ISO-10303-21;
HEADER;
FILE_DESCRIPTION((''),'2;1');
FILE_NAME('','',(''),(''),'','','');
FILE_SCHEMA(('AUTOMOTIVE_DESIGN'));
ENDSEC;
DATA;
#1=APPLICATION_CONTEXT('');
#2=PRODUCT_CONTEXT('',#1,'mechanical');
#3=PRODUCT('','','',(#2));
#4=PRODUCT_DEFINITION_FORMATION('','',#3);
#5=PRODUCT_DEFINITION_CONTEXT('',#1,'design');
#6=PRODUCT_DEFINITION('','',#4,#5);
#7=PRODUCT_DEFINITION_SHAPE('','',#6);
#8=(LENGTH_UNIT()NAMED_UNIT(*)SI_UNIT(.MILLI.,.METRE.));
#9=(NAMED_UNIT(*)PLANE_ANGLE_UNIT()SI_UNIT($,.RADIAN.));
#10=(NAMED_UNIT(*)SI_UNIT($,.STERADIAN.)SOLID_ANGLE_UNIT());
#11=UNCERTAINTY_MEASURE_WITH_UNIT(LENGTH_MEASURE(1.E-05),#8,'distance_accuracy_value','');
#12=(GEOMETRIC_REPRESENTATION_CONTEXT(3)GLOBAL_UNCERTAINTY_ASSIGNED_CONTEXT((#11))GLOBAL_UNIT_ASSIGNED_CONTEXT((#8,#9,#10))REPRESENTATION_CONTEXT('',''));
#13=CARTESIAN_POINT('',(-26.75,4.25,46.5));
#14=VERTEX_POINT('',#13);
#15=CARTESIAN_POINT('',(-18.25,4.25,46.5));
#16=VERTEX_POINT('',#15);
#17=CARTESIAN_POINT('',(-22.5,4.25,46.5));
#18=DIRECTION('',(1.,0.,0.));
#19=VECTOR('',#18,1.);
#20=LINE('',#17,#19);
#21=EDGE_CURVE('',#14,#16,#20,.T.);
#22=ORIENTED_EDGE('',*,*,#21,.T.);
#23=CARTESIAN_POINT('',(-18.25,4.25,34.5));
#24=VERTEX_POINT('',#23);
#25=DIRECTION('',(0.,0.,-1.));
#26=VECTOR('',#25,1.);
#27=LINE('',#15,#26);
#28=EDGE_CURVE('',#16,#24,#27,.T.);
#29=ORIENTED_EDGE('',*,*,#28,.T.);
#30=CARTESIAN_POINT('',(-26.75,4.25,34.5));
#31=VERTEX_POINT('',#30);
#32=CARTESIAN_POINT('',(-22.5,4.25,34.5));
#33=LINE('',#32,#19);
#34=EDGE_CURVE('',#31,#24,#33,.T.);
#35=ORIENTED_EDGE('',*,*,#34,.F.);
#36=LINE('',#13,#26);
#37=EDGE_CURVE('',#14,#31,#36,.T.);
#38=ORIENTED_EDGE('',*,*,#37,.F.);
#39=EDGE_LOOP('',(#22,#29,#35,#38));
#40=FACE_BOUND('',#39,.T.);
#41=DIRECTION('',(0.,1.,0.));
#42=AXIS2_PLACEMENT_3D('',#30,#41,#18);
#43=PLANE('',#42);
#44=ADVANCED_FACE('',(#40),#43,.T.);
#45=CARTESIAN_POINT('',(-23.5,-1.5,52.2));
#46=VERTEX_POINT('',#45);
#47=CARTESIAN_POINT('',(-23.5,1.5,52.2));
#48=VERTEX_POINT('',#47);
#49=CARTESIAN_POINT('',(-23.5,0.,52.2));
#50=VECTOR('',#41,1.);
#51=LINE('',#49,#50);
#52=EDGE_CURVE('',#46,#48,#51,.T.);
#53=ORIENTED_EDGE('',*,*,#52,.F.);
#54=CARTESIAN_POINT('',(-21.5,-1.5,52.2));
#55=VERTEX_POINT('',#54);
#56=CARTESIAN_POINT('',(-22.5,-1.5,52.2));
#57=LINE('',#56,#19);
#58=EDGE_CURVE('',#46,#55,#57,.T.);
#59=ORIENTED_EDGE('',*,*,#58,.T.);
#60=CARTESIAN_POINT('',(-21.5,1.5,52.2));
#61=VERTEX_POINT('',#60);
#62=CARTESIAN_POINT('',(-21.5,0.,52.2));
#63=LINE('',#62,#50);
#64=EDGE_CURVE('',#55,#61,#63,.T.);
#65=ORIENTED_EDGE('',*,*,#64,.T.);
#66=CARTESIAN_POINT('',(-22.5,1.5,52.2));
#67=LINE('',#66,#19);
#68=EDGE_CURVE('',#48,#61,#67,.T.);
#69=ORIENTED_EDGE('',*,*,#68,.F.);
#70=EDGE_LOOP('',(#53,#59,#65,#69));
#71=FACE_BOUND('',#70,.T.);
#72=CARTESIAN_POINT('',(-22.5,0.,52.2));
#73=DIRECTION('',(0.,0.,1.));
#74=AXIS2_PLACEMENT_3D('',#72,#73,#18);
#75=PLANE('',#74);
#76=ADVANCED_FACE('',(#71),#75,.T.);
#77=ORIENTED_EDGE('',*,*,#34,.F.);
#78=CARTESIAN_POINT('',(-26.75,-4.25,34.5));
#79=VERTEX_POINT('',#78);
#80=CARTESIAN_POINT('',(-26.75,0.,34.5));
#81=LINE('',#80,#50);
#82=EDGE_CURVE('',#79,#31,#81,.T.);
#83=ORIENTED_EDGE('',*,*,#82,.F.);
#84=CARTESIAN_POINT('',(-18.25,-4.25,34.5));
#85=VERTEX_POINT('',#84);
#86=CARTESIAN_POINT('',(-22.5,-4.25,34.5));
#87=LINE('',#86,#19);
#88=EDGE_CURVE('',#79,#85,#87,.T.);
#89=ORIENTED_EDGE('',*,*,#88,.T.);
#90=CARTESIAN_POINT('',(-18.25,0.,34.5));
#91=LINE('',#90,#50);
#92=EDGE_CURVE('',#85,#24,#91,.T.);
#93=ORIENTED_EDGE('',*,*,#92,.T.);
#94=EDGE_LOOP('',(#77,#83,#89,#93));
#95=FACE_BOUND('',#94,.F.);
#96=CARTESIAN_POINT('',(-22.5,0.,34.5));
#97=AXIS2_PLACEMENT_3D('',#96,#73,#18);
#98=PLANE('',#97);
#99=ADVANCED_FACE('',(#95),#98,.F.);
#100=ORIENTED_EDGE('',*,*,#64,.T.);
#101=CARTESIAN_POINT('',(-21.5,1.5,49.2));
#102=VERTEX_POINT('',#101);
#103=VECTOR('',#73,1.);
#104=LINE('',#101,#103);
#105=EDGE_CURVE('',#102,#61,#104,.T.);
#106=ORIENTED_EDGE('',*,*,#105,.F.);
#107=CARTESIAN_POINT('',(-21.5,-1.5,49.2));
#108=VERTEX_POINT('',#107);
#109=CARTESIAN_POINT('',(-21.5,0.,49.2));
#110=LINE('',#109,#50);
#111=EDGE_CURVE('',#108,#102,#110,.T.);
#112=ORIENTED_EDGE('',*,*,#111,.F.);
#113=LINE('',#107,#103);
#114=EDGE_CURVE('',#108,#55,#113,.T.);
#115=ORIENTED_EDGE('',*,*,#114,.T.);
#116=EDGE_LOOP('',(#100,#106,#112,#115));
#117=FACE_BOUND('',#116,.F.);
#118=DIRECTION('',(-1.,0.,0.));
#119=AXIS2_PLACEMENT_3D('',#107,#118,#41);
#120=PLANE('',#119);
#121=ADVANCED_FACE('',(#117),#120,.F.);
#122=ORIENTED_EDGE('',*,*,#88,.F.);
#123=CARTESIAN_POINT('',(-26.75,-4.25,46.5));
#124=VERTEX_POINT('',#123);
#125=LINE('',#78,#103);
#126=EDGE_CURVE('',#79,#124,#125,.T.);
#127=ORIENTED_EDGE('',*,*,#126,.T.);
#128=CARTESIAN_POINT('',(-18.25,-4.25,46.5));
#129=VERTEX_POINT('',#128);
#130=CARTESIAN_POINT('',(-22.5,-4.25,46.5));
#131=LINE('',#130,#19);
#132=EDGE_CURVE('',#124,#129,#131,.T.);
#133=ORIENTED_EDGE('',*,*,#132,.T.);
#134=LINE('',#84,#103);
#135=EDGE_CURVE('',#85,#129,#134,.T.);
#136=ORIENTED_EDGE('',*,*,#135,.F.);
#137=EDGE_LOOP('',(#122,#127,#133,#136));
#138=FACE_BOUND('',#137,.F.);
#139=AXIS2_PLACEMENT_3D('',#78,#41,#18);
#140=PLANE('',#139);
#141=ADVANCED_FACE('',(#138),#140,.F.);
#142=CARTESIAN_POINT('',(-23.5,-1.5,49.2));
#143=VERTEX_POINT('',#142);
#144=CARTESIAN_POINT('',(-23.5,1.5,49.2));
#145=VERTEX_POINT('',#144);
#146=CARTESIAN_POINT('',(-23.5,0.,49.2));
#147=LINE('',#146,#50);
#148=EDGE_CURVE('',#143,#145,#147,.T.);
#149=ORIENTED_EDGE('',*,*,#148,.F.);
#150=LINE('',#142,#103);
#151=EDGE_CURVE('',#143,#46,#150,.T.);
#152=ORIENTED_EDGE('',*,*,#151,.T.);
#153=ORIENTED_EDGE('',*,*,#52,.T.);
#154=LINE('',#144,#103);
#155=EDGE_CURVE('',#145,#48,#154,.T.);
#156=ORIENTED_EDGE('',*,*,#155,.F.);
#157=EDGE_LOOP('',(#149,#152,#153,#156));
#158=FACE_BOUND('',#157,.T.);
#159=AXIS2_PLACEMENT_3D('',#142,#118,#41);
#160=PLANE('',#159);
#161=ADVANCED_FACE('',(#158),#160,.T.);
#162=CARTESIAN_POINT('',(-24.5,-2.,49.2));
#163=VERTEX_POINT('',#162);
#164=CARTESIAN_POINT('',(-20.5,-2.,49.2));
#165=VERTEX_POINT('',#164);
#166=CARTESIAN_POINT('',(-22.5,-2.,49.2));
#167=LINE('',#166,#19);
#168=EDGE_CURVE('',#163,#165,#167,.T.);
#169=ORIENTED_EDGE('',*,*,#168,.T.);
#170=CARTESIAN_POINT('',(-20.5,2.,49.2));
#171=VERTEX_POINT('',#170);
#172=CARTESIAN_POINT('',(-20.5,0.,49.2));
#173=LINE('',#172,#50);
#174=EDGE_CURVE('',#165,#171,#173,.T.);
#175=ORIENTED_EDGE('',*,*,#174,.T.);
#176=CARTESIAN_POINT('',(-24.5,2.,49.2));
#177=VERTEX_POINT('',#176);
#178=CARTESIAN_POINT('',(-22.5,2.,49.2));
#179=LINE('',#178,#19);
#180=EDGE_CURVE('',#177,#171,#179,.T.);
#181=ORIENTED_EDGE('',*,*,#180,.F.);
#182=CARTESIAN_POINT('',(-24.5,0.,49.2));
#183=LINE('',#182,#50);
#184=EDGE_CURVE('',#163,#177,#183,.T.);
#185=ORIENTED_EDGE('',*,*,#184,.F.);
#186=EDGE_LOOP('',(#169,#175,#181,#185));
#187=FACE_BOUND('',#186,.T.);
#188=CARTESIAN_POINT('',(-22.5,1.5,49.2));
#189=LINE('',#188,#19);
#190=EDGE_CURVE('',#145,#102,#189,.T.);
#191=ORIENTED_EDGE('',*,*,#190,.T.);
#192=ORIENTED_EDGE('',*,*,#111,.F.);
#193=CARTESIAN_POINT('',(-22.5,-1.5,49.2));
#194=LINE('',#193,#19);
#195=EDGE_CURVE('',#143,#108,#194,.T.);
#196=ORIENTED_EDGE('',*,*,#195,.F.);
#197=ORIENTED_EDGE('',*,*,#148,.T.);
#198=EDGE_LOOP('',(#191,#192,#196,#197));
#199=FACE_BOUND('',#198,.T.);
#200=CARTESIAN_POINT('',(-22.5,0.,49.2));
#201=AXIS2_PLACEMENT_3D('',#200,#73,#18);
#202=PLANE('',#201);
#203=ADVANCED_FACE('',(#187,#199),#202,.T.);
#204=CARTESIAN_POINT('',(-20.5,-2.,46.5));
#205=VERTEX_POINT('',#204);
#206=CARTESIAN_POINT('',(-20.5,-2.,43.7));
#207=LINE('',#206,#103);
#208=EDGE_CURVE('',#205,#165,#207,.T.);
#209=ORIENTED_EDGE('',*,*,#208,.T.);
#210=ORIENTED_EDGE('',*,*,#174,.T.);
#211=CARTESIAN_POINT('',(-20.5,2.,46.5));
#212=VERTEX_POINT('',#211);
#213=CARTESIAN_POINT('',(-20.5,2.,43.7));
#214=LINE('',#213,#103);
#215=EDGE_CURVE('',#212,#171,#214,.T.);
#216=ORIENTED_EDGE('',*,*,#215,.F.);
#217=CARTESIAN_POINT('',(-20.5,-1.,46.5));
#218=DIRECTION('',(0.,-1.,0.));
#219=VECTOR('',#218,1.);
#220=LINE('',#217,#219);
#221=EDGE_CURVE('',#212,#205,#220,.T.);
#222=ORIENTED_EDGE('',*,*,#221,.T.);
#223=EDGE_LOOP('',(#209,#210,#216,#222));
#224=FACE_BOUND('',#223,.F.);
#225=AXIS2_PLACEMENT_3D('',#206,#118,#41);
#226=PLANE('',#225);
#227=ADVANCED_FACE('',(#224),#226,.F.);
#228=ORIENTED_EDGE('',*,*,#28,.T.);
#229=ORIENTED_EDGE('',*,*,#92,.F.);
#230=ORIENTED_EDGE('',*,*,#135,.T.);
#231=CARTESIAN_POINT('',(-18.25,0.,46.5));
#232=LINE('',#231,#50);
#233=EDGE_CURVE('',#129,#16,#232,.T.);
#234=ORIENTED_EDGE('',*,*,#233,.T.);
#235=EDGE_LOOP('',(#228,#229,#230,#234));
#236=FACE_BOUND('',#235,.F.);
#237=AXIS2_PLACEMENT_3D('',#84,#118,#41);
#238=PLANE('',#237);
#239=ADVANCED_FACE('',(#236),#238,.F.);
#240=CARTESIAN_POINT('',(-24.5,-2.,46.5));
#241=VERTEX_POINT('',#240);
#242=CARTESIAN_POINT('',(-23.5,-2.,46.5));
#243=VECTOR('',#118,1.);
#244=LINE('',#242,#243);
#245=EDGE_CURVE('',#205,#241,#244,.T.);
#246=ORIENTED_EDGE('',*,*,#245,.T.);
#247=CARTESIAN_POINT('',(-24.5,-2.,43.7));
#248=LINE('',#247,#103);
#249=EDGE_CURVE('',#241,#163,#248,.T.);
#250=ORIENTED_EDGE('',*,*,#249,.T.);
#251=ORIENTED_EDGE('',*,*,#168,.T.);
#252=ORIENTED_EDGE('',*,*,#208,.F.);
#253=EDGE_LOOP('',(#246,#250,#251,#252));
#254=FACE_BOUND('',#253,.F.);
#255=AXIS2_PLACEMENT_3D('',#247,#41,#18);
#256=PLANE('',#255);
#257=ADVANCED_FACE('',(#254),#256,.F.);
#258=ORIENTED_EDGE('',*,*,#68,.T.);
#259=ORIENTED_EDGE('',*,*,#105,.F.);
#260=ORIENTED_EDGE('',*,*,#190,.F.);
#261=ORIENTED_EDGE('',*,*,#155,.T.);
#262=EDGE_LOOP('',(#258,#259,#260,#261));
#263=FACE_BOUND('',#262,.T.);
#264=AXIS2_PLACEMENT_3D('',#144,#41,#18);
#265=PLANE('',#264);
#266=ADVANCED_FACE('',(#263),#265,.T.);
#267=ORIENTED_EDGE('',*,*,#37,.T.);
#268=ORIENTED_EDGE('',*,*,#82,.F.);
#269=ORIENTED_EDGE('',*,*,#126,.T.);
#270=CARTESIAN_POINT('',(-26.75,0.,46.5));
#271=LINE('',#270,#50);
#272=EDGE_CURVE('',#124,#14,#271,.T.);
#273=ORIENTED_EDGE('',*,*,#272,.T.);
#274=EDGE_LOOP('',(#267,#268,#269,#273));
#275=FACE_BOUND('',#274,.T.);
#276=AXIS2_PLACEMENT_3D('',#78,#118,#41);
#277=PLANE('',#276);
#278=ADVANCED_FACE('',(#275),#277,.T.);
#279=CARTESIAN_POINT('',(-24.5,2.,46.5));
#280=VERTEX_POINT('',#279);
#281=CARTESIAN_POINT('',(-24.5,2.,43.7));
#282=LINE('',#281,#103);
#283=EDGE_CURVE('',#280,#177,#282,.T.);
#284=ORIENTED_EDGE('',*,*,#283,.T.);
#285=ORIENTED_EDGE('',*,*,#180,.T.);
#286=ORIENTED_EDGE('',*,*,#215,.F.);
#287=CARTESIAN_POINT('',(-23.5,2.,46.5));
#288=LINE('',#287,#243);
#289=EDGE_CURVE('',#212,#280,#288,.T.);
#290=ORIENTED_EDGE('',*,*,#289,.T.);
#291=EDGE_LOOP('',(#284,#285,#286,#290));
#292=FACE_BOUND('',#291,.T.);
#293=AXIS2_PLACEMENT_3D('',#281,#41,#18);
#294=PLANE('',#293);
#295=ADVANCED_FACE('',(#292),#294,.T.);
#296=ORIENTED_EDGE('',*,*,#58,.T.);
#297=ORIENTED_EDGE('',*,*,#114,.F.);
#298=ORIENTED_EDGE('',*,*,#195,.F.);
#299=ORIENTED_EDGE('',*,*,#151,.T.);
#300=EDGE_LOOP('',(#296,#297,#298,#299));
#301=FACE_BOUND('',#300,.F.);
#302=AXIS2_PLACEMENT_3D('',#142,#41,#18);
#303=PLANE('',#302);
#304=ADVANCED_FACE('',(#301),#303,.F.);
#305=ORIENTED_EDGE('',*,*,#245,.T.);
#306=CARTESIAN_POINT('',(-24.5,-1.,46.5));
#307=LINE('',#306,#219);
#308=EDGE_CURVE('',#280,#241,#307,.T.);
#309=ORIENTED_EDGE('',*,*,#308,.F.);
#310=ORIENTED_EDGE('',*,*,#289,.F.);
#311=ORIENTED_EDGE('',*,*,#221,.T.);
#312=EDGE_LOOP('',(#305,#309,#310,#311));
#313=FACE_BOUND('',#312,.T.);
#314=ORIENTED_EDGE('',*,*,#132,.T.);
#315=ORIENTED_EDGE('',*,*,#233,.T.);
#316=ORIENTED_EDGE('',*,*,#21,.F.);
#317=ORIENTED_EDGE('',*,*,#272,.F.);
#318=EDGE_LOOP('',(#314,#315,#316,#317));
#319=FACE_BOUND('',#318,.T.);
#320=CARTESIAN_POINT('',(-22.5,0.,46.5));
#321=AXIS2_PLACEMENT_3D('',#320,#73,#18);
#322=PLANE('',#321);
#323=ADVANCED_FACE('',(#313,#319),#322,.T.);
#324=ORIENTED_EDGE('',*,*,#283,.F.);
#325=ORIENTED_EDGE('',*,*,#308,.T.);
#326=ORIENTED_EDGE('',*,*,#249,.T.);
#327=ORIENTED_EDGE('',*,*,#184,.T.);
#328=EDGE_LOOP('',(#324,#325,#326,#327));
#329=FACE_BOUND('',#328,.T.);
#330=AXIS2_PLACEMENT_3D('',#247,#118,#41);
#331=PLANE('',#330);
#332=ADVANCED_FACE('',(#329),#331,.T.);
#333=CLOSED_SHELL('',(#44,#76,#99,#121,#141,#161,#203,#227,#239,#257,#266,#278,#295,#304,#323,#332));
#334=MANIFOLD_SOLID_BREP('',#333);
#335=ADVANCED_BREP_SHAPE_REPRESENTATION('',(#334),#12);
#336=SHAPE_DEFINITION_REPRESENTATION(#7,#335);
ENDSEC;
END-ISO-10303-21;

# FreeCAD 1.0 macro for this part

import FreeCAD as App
import Part
import Sketcher

V = App.Vector

doc = App.newDocument("Part")
body = doc.addObject("PartDesign::Body", "Body")

# Sketch on XY plane
sketch1 = doc.addObject("Sketcher::SketchObject", "Sketch")
body.addObject(sketch1)
sketch1.AttachmentSupport = (doc.XY_Plane, [""])
sketch1.MapMode = "FlatFace"
sketch1.AttachmentOffset = App.Placement(V(0, 0, 5.7), App.Rotation())
sketch1.addGeometry([
    Part.LineSegment(V(-2, 2, 0), V(-2, -2, 0)),
    Part.LineSegment(V(-2, -2, 0), V(2, -2, 0)),
    Part.LineSegment(V(2, -2, 0), V(2, 2, 0)),
    Part.LineSegment(V(2, 2, 0), V(-2, 2, 0)),
], False)
sketch1.addConstraint([
    Sketcher.Constraint("Coincident", 0, 2, 1, 1),
    Sketcher.Constraint("Coincident", 1, 2, 2, 1),
    Sketcher.Constraint("Coincident", 2, 2, 3, 1),
    Sketcher.Constraint("Coincident", 3, 2, 0, 1),
    Sketcher.Constraint("Vertical", 0),
    Sketcher.Constraint("Horizontal", 1),
    Sketcher.Constraint("Vertical", 2),
    Sketcher.Constraint("Horizontal", 3),
    Sketcher.Constraint("Symmetric", 0, 2, 2, 2, -1, 1),
    Sketcher.Constraint("Equal", 3, 0),
    Sketcher.Constraint("DistanceX", 1, 1, 1, 2, 4.0),
])
pad1 = doc.addObject("PartDesign::Pad", "Pad")
body.addObject(pad1)
pad1.Profile = sketch1
pad1.Length = 5.5
body2 = doc.addObject("PartDesign::Body", "Body001")

# Sketch on XY plane
sketch2 = doc.addObject("Sketcher::SketchObject", "Sketch001")
body2.addObject(sketch2)
sketch2.AttachmentSupport = (doc.getObject("XY_Plane001"), [""])
sketch2.MapMode = "FlatFace"
sketch2.AttachmentOffset = App.Placement(V(0, 0, -3.5), App.Rotation())
sketch2.addGeometry([
    Part.LineSegment(V(-4, 4, 0), V(-4, -4, 0)),
    Part.LineSegment(V(-4, -4, 0), V(4, -4, 0)),
    Part.LineSegment(V(4, -4, 0), V(4, 4, 0)),
    Part.LineSegment(V(4, 4, 0), V(-4, 4, 0)),
], False)
sketch2.addConstraint([
    Sketcher.Constraint("Coincident", 0, 2, 1, 1),
    Sketcher.Constraint("Coincident", 1, 2, 2, 1),
    Sketcher.Constraint("Coincident", 2, 2, 3, 1),
    Sketcher.Constraint("Coincident", 3, 2, 0, 1),
    Sketcher.Constraint("Vertical", 0),
    Sketcher.Constraint("Horizontal", 1),
    Sketcher.Constraint("Vertical", 2),
    Sketcher.Constraint("Horizontal", 3),
    Sketcher.Constraint("Symmetric", 0, 2, 2, 2, -1, 1),
    Sketcher.Constraint("Equal", 3, 0),
    Sketcher.Constraint("DistanceX", 1, 1, 1, 2, 8.5),
])
pad2 = doc.addObject("PartDesign::Pad", "Pad001")
body2.addObject(pad2)
pad2.Profile = sketch2
pad2.Length = 3.5
body3 = doc.addObject("PartDesign::Body", "Body002")

# Sketch on XY plane
sketch3 = doc.addObject("Sketcher::SketchObject", "Sketch002")
body3.addObject(sketch3)
sketch3.AttachmentSupport = (doc.getObject("XY_Plane002"), [""])
sketch3.MapMode = "FlatFace"
sketch3.AttachmentOffset = App.Placement(V(0, 0, 11.2), App.Rotation())
sketch3.addGeometry([
    Part.LineSegment(V(-1, 1.5, 0), V(-1, -1.5, 0)),
    Part.LineSegment(V(-1, -1.5, 0), V(1, -1.5, 0)),
    Part.LineSegment(V(1, -1.5, 0), V(1, 1.5, 0)),
    Part.LineSegment(V(1, 1.5, 0), V(-1, 1.5, 0)),
], False)
sketch3.addConstraint([
    Sketcher.Constraint("Coincident", 0, 2, 1, 1),
    Sketcher.Constraint("Coincident", 1, 2, 2, 1),
    Sketcher.Constraint("Coincident", 2, 2, 3, 1),
    Sketcher.Constraint("Coincident", 3, 2, 0, 1),
    Sketcher.Constraint("Vertical", 0),
    Sketcher.Constraint("Horizontal", 1),
    Sketcher.Constraint("Vertical", 2),
    Sketcher.Constraint("Horizontal", 3),
    Sketcher.Constraint("Symmetric", 0, 2, 2, 2, -1, 1),
    Sketcher.Constraint("DistanceX", 1, 1, 1, 2, 2.0),
    Sketcher.Constraint("DistanceY", 0, 2, 0, 1, 3.0),
])
pad3 = doc.addObject("PartDesign::Pad", "Pad002")
body3.addObject(pad3)
pad3.Profile = sketch3
pad3.Length = 3
body4 = doc.addObject("PartDesign::Body", "Body003")

# Sketch on XY plane
sketch4 = doc.addObject("Sketcher::SketchObject", "Sketch003")
body4.addObject(sketch4)
sketch4.AttachmentSupport = (doc.getObject("XY_Plane003"), [""])
sketch4.MapMode = "FlatFace"
sketch4.addGeometry([
    Part.LineSegment(V(-4, 4, 0), V(-4, -4, 0)),
    Part.LineSegment(V(-4, -4, 0), V(4, -4, 0)),
    Part.LineSegment(V(4, -4, 0), V(4, 4, 0)),
    Part.LineSegment(V(4, 4, 0), V(-4, 4, 0)),
], False)
sketch4.addConstraint([
    Sketcher.Constraint("Coincident", 0, 2, 1, 1),
    Sketcher.Constraint("Coincident", 1, 2, 2, 1),
    Sketcher.Constraint("Coincident", 2, 2, 3, 1),
    Sketcher.Constraint("Coincident", 3, 2, 0, 1),
    Sketcher.Constraint("Vertical", 0),
    Sketcher.Constraint("Horizontal", 1),
    Sketcher.Constraint("Vertical", 2),
    Sketcher.Constraint("Horizontal", 3),
    Sketcher.Constraint("Symmetric", 0, 2, 2, 2, -1, 1),
    Sketcher.Constraint("Equal", 3, 0),
    Sketcher.Constraint("DistanceX", 1, 1, 1, 2, 8.5),
])
pad4 = doc.addObject("PartDesign::Pad", "Pad003")
body4.addObject(pad4)
pad4.Profile = sketch4
pad4.Length = 8.5
doc.recompute()

boolean = doc.addObject("PartDesign::Boolean", "Boolean")
body4.addObject(boolean)
boolean.Type = "Fuse"
boolean.addObjects([body])
doc.recompute()

boolean2 = doc.addObject("PartDesign::Boolean", "Boolean001")
body4.addObject(boolean2)
boolean2.Type = "Fuse"
boolean2.addObjects([body2])
doc.recompute()

boolean3 = doc.addObject("PartDesign::Boolean", "Boolean002")
body4.addObject(boolean3)
boolean3.Type = "Fuse"
boolean3.addObjects([body3])
body5 = doc.addObject("PartDesign::Body", "Body004")
doc.recompute()

body4.Placement = App.Placement(V(-22.5, 0, 38), App.Rotation(V(0, 0, 1), 0))
boolean4 = doc.addObject("PartDesign::Boolean", "Boolean003")
body5.addObject(boolean4)
boolean4.Type = "Fuse"
boolean4.addObjects([body4])

doc.recompute()
